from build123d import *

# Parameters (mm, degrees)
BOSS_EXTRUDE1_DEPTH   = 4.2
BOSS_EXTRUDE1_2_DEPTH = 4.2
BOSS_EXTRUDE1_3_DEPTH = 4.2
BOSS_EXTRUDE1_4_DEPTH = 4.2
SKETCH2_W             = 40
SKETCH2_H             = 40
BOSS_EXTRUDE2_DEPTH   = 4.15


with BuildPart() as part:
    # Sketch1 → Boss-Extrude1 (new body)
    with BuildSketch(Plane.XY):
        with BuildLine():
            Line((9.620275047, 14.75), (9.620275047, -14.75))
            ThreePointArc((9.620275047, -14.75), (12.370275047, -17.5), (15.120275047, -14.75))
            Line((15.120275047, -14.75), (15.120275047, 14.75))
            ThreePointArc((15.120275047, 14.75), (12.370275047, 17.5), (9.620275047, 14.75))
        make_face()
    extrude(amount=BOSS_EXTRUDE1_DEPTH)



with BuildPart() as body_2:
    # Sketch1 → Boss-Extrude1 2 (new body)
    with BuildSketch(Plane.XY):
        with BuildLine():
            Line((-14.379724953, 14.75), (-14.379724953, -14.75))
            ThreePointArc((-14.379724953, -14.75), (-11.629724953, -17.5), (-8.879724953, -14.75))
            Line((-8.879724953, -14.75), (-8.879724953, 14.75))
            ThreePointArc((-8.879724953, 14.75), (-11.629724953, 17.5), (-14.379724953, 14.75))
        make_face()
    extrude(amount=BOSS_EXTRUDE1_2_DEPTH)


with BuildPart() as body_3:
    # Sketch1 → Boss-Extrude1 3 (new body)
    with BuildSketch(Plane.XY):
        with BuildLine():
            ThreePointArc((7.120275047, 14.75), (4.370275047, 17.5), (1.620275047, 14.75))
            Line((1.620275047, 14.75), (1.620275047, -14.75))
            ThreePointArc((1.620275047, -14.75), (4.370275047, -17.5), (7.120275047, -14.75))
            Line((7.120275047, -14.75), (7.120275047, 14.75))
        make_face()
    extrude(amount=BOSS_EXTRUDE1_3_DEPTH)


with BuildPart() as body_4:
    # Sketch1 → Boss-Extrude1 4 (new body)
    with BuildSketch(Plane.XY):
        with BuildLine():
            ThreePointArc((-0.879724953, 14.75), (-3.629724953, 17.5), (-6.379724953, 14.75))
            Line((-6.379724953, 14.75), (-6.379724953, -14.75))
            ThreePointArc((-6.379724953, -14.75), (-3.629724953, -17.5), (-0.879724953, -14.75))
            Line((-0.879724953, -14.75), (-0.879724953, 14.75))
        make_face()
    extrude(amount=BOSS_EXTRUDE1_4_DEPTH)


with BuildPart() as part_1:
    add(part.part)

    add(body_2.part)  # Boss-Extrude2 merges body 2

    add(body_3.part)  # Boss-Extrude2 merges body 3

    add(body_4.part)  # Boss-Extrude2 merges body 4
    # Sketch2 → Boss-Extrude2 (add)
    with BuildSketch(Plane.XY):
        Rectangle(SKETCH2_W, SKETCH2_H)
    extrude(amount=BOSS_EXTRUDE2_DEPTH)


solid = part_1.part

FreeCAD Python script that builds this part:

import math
import FreeCAD as App
import Part
import Sketcher
from FreeCAD import Vector


def add_polygon(sketch, points):
    """Adds a closed chain of lines whose ends are joined by coincident constraints."""
    first, n = sketch.GeometryCount, len(points)
    for a, b in zip(points, points[1:] + points[:1]):
        sketch.addGeometry(Part.LineSegment(App.Vector(*a, 0), App.Vector(*b, 0)), False)
    for i in range(n):
        sketch.addConstraint(Sketcher.Constraint("Coincident", first + i, 2, first + (i + 1) % n, 1))

doc = App.newDocument("Part")
body = doc.addObject("PartDesign::Body", "Body")

# Sketch on XY plane
sketch1 = body.newObject("Sketcher::SketchObject", "Sketch")
sketch1.AttachmentSupport = (doc.getObject("XY_Plane"), [""])
sketch1.MapMode = "FlatFace"
sketch1.addGeometry([
    Part.LineSegment(Vector(9.6, 14.8, 0), Vector(9.6, -14.8, 0)),
    Part.ArcOfCircle(Part.Circle(Vector(12.4, -14.8, 0), Vector(0, 0, 1), 2.8), math.radians(180), math.radians(360)),
    Part.LineSegment(Vector(15.1, -14.8, 0), Vector(15.1, 14.8, 0)),
    Part.ArcOfCircle(Part.Circle(Vector(12.4, 14.8, 0), Vector(0, 0, 1), 2.8), math.radians(0), math.radians(180)),
], False)
sketch1.addConstraint([
    Sketcher.Constraint("Tangent", 0, 2, 1, 1),
    Sketcher.Constraint("Tangent", 1, 2, 2, 1),
    Sketcher.Constraint("Tangent", 2, 2, 3, 1),
    Sketcher.Constraint("Tangent", 3, 2, 0, 1),
    Sketcher.Constraint("Vertical", 0),
    Sketcher.Constraint("Vertical", 2),
    Sketcher.Constraint("Radius", 1, 2.75),
    Sketcher.Constraint("DistanceY", 0, 2, 0, 1, 29.5),
    Sketcher.Constraint("DistanceY", 1, 3, -1, 1, 14.75),
    Sketcher.Constraint("DistanceX", -1, 1, 1, 3, 12.370275),
])
pad1 = body.newObject("PartDesign::Pad", "Pad")
pad1.Profile = sketch1
pad1.Length = 4.2
body2 = doc.addObject("PartDesign::Body", "Body001")

# Sketch on XY plane
sketch2 = body2.newObject("Sketcher::SketchObject", "Sketch001")
sketch2.AttachmentSupport = (doc.getObject("XY_Plane001"), [""])
sketch2.MapMode = "FlatFace"
sketch2.addGeometry([
    Part.LineSegment(Vector(-14.4, 14.8, 0), Vector(-14.4, -14.8, 0)),
    Part.ArcOfCircle(Part.Circle(Vector(-11.6, -14.8, 0), Vector(0, 0, 1), 2.8), math.radians(180), math.radians(360)),
    Part.LineSegment(Vector(-8.9, -14.8, 0), Vector(-8.9, 14.8, 0)),
    Part.ArcOfCircle(Part.Circle(Vector(-11.6, 14.8, 0), Vector(0, 0, 1), 2.8), math.radians(0), math.radians(180)),
], False)
sketch2.addConstraint([
    Sketcher.Constraint("Tangent", 0, 2, 1, 1),
    Sketcher.Constraint("Tangent", 1, 2, 2, 1),
    Sketcher.Constraint("Tangent", 2, 2, 3, 1),
    Sketcher.Constraint("Tangent", 3, 2, 0, 1),
    Sketcher.Constraint("Vertical", 0),
    Sketcher.Constraint("Vertical", 2),
    Sketcher.Constraint("Radius", 1, 2.75),
    Sketcher.Constraint("DistanceY", 0, 2, 0, 1, 29.5),
    Sketcher.Constraint("DistanceY", 1, 3, -1, 1, 14.75),
    Sketcher.Constraint("DistanceX", 1, 3, -1, 1, 11.629725),
])
pad2 = body2.newObject("PartDesign::Pad", "Pad001")
pad2.Profile = sketch2
pad2.Length = 4.2
body3 = doc.addObject("PartDesign::Body", "Body002")

# Sketch on XY plane
sketch3 = body3.newObject("Sketcher::SketchObject", "Sketch002")
sketch3.AttachmentSupport = (doc.getObject("XY_Plane002"), [""])
sketch3.MapMode = "FlatFace"
sketch3.addGeometry([
    Part.ArcOfCircle(Part.Circle(Vector(4.4, 14.8, 0), Vector(0, 0, 1), 2.8), math.radians(0), math.radians(180)),
    Part.LineSegment(Vector(1.6, 14.8, 0), Vector(1.6, -14.8, 0)),
    Part.ArcOfCircle(Part.Circle(Vector(4.4, -14.8, 0), Vector(0, 0, 1), 2.8), math.radians(180), math.radians(360)),
    Part.LineSegment(Vector(7.1, -14.8, 0), Vector(7.1, 14.8, 0)),
], False)
sketch3.addConstraint([
    Sketcher.Constraint("Tangent", 0, 2, 1, 1),
    Sketcher.Constraint("Tangent", 1, 2, 2, 1),
    Sketcher.Constraint("Tangent", 2, 2, 3, 1),
    Sketcher.Constraint("Tangent", 3, 2, 0, 1),
    Sketcher.Constraint("Vertical", 1),
    Sketcher.Constraint("Vertical", 3),
    Sketcher.Constraint("Radius", 0, 2.75),
    Sketcher.Constraint("DistanceY", 1, 2, 1, 1, 29.5),
    Sketcher.Constraint("DistanceY", -1, 1, 0, 3, 14.75),
    Sketcher.Constraint("DistanceX", -1, 1, 0, 3, 4.370275),
])
pad3 = body3.newObject("PartDesign::Pad", "Pad002")
pad3.Profile = sketch3
pad3.Length = 4.2
body4 = doc.addObject("PartDesign::Body", "Body003")

# Sketch on XY plane
sketch4 = body4.newObject("Sketcher::SketchObject", "Sketch003")
sketch4.AttachmentSupport = (doc.getObject("XY_Plane003"), [""])
sketch4.MapMode = "FlatFace"
sketch4.addGeometry([
    Part.ArcOfCircle(Part.Circle(Vector(-3.6, 14.8, 0), Vector(0, 0, 1), 2.8), math.radians(0), math.radians(180)),
    Part.LineSegment(Vector(-6.4, 14.8, 0), Vector(-6.4, -14.8, 0)),
    Part.ArcOfCircle(Part.Circle(Vector(-3.6, -14.8, 0), Vector(0, 0, 1), 2.8), math.radians(180), math.radians(360)),
    Part.LineSegment(Vector(-0.9, -14.8, 0), Vector(-0.9, 14.8, 0)),
], False)
sketch4.addConstraint([
    Sketcher.Constraint("Tangent", 0, 2, 1, 1),
    Sketcher.Constraint("Tangent", 1, 2, 2, 1),
    Sketcher.Constraint("Tangent", 2, 2, 3, 1),
    Sketcher.Constraint("Tangent", 3, 2, 0, 1),
    Sketcher.Constraint("Vertical", 1),
    Sketcher.Constraint("Vertical", 3),
    Sketcher.Constraint("Radius", 0, 2.75),
    Sketcher.Constraint("DistanceY", 1, 2, 1, 1, 29.5),
    Sketcher.Constraint("DistanceY", -1, 1, 0, 3, 14.75),
    Sketcher.Constraint("DistanceX", 0, 3, -1, 1, 3.629725),
])
pad4 = body4.newObject("PartDesign::Pad", "Pad003")
pad4.Profile = sketch4
pad4.Length = 4.2
body.AllowCompound = True
doc.recompute()

boolean = body.newObject("PartDesign::Boolean", "Boolean")
boolean.Type = "Fuse"
boolean.addObjects([body2])
doc.recompute()

boolean2 = body.newObject("PartDesign::Boolean", "Boolean001")
boolean2.Type = "Fuse"
boolean2.addObjects([body3])
doc.recompute()

boolean3 = body.newObject("PartDesign::Boolean", "Boolean002")
boolean3.Type = "Fuse"
boolean3.addObjects([body4])

# Sketch on XY plane
sketch5 = body.newObject("Sketcher::SketchObject", "Sketch004")
sketch5.AttachmentSupport = (doc.getObject("XY_Plane"), [""])
sketch5.MapMode = "FlatFace"
add_polygon(sketch5, [(-20, 20), (-20, -20), (20, -20), (20, 20)])  # lines 0-3
sketch5.addConstraint([
    Sketcher.Constraint("Vertical", 0),
    Sketcher.Constraint("Horizontal", 1),
    Sketcher.Constraint("Vertical", 2),
    Sketcher.Constraint("Horizontal", 3),
    Sketcher.Constraint("Symmetric", 0, 2, 2, 2, -1, 1),
    Sketcher.Constraint("Equal", 3, 0),
    Sketcher.Constraint("DistanceX", 1, 1, 1, 2, 40.0),
])
pad5 = body.newObject("PartDesign::Pad", "Pad004")
pad5.Profile = sketch5
pad5.Length = 4.15

doc.recompute()
